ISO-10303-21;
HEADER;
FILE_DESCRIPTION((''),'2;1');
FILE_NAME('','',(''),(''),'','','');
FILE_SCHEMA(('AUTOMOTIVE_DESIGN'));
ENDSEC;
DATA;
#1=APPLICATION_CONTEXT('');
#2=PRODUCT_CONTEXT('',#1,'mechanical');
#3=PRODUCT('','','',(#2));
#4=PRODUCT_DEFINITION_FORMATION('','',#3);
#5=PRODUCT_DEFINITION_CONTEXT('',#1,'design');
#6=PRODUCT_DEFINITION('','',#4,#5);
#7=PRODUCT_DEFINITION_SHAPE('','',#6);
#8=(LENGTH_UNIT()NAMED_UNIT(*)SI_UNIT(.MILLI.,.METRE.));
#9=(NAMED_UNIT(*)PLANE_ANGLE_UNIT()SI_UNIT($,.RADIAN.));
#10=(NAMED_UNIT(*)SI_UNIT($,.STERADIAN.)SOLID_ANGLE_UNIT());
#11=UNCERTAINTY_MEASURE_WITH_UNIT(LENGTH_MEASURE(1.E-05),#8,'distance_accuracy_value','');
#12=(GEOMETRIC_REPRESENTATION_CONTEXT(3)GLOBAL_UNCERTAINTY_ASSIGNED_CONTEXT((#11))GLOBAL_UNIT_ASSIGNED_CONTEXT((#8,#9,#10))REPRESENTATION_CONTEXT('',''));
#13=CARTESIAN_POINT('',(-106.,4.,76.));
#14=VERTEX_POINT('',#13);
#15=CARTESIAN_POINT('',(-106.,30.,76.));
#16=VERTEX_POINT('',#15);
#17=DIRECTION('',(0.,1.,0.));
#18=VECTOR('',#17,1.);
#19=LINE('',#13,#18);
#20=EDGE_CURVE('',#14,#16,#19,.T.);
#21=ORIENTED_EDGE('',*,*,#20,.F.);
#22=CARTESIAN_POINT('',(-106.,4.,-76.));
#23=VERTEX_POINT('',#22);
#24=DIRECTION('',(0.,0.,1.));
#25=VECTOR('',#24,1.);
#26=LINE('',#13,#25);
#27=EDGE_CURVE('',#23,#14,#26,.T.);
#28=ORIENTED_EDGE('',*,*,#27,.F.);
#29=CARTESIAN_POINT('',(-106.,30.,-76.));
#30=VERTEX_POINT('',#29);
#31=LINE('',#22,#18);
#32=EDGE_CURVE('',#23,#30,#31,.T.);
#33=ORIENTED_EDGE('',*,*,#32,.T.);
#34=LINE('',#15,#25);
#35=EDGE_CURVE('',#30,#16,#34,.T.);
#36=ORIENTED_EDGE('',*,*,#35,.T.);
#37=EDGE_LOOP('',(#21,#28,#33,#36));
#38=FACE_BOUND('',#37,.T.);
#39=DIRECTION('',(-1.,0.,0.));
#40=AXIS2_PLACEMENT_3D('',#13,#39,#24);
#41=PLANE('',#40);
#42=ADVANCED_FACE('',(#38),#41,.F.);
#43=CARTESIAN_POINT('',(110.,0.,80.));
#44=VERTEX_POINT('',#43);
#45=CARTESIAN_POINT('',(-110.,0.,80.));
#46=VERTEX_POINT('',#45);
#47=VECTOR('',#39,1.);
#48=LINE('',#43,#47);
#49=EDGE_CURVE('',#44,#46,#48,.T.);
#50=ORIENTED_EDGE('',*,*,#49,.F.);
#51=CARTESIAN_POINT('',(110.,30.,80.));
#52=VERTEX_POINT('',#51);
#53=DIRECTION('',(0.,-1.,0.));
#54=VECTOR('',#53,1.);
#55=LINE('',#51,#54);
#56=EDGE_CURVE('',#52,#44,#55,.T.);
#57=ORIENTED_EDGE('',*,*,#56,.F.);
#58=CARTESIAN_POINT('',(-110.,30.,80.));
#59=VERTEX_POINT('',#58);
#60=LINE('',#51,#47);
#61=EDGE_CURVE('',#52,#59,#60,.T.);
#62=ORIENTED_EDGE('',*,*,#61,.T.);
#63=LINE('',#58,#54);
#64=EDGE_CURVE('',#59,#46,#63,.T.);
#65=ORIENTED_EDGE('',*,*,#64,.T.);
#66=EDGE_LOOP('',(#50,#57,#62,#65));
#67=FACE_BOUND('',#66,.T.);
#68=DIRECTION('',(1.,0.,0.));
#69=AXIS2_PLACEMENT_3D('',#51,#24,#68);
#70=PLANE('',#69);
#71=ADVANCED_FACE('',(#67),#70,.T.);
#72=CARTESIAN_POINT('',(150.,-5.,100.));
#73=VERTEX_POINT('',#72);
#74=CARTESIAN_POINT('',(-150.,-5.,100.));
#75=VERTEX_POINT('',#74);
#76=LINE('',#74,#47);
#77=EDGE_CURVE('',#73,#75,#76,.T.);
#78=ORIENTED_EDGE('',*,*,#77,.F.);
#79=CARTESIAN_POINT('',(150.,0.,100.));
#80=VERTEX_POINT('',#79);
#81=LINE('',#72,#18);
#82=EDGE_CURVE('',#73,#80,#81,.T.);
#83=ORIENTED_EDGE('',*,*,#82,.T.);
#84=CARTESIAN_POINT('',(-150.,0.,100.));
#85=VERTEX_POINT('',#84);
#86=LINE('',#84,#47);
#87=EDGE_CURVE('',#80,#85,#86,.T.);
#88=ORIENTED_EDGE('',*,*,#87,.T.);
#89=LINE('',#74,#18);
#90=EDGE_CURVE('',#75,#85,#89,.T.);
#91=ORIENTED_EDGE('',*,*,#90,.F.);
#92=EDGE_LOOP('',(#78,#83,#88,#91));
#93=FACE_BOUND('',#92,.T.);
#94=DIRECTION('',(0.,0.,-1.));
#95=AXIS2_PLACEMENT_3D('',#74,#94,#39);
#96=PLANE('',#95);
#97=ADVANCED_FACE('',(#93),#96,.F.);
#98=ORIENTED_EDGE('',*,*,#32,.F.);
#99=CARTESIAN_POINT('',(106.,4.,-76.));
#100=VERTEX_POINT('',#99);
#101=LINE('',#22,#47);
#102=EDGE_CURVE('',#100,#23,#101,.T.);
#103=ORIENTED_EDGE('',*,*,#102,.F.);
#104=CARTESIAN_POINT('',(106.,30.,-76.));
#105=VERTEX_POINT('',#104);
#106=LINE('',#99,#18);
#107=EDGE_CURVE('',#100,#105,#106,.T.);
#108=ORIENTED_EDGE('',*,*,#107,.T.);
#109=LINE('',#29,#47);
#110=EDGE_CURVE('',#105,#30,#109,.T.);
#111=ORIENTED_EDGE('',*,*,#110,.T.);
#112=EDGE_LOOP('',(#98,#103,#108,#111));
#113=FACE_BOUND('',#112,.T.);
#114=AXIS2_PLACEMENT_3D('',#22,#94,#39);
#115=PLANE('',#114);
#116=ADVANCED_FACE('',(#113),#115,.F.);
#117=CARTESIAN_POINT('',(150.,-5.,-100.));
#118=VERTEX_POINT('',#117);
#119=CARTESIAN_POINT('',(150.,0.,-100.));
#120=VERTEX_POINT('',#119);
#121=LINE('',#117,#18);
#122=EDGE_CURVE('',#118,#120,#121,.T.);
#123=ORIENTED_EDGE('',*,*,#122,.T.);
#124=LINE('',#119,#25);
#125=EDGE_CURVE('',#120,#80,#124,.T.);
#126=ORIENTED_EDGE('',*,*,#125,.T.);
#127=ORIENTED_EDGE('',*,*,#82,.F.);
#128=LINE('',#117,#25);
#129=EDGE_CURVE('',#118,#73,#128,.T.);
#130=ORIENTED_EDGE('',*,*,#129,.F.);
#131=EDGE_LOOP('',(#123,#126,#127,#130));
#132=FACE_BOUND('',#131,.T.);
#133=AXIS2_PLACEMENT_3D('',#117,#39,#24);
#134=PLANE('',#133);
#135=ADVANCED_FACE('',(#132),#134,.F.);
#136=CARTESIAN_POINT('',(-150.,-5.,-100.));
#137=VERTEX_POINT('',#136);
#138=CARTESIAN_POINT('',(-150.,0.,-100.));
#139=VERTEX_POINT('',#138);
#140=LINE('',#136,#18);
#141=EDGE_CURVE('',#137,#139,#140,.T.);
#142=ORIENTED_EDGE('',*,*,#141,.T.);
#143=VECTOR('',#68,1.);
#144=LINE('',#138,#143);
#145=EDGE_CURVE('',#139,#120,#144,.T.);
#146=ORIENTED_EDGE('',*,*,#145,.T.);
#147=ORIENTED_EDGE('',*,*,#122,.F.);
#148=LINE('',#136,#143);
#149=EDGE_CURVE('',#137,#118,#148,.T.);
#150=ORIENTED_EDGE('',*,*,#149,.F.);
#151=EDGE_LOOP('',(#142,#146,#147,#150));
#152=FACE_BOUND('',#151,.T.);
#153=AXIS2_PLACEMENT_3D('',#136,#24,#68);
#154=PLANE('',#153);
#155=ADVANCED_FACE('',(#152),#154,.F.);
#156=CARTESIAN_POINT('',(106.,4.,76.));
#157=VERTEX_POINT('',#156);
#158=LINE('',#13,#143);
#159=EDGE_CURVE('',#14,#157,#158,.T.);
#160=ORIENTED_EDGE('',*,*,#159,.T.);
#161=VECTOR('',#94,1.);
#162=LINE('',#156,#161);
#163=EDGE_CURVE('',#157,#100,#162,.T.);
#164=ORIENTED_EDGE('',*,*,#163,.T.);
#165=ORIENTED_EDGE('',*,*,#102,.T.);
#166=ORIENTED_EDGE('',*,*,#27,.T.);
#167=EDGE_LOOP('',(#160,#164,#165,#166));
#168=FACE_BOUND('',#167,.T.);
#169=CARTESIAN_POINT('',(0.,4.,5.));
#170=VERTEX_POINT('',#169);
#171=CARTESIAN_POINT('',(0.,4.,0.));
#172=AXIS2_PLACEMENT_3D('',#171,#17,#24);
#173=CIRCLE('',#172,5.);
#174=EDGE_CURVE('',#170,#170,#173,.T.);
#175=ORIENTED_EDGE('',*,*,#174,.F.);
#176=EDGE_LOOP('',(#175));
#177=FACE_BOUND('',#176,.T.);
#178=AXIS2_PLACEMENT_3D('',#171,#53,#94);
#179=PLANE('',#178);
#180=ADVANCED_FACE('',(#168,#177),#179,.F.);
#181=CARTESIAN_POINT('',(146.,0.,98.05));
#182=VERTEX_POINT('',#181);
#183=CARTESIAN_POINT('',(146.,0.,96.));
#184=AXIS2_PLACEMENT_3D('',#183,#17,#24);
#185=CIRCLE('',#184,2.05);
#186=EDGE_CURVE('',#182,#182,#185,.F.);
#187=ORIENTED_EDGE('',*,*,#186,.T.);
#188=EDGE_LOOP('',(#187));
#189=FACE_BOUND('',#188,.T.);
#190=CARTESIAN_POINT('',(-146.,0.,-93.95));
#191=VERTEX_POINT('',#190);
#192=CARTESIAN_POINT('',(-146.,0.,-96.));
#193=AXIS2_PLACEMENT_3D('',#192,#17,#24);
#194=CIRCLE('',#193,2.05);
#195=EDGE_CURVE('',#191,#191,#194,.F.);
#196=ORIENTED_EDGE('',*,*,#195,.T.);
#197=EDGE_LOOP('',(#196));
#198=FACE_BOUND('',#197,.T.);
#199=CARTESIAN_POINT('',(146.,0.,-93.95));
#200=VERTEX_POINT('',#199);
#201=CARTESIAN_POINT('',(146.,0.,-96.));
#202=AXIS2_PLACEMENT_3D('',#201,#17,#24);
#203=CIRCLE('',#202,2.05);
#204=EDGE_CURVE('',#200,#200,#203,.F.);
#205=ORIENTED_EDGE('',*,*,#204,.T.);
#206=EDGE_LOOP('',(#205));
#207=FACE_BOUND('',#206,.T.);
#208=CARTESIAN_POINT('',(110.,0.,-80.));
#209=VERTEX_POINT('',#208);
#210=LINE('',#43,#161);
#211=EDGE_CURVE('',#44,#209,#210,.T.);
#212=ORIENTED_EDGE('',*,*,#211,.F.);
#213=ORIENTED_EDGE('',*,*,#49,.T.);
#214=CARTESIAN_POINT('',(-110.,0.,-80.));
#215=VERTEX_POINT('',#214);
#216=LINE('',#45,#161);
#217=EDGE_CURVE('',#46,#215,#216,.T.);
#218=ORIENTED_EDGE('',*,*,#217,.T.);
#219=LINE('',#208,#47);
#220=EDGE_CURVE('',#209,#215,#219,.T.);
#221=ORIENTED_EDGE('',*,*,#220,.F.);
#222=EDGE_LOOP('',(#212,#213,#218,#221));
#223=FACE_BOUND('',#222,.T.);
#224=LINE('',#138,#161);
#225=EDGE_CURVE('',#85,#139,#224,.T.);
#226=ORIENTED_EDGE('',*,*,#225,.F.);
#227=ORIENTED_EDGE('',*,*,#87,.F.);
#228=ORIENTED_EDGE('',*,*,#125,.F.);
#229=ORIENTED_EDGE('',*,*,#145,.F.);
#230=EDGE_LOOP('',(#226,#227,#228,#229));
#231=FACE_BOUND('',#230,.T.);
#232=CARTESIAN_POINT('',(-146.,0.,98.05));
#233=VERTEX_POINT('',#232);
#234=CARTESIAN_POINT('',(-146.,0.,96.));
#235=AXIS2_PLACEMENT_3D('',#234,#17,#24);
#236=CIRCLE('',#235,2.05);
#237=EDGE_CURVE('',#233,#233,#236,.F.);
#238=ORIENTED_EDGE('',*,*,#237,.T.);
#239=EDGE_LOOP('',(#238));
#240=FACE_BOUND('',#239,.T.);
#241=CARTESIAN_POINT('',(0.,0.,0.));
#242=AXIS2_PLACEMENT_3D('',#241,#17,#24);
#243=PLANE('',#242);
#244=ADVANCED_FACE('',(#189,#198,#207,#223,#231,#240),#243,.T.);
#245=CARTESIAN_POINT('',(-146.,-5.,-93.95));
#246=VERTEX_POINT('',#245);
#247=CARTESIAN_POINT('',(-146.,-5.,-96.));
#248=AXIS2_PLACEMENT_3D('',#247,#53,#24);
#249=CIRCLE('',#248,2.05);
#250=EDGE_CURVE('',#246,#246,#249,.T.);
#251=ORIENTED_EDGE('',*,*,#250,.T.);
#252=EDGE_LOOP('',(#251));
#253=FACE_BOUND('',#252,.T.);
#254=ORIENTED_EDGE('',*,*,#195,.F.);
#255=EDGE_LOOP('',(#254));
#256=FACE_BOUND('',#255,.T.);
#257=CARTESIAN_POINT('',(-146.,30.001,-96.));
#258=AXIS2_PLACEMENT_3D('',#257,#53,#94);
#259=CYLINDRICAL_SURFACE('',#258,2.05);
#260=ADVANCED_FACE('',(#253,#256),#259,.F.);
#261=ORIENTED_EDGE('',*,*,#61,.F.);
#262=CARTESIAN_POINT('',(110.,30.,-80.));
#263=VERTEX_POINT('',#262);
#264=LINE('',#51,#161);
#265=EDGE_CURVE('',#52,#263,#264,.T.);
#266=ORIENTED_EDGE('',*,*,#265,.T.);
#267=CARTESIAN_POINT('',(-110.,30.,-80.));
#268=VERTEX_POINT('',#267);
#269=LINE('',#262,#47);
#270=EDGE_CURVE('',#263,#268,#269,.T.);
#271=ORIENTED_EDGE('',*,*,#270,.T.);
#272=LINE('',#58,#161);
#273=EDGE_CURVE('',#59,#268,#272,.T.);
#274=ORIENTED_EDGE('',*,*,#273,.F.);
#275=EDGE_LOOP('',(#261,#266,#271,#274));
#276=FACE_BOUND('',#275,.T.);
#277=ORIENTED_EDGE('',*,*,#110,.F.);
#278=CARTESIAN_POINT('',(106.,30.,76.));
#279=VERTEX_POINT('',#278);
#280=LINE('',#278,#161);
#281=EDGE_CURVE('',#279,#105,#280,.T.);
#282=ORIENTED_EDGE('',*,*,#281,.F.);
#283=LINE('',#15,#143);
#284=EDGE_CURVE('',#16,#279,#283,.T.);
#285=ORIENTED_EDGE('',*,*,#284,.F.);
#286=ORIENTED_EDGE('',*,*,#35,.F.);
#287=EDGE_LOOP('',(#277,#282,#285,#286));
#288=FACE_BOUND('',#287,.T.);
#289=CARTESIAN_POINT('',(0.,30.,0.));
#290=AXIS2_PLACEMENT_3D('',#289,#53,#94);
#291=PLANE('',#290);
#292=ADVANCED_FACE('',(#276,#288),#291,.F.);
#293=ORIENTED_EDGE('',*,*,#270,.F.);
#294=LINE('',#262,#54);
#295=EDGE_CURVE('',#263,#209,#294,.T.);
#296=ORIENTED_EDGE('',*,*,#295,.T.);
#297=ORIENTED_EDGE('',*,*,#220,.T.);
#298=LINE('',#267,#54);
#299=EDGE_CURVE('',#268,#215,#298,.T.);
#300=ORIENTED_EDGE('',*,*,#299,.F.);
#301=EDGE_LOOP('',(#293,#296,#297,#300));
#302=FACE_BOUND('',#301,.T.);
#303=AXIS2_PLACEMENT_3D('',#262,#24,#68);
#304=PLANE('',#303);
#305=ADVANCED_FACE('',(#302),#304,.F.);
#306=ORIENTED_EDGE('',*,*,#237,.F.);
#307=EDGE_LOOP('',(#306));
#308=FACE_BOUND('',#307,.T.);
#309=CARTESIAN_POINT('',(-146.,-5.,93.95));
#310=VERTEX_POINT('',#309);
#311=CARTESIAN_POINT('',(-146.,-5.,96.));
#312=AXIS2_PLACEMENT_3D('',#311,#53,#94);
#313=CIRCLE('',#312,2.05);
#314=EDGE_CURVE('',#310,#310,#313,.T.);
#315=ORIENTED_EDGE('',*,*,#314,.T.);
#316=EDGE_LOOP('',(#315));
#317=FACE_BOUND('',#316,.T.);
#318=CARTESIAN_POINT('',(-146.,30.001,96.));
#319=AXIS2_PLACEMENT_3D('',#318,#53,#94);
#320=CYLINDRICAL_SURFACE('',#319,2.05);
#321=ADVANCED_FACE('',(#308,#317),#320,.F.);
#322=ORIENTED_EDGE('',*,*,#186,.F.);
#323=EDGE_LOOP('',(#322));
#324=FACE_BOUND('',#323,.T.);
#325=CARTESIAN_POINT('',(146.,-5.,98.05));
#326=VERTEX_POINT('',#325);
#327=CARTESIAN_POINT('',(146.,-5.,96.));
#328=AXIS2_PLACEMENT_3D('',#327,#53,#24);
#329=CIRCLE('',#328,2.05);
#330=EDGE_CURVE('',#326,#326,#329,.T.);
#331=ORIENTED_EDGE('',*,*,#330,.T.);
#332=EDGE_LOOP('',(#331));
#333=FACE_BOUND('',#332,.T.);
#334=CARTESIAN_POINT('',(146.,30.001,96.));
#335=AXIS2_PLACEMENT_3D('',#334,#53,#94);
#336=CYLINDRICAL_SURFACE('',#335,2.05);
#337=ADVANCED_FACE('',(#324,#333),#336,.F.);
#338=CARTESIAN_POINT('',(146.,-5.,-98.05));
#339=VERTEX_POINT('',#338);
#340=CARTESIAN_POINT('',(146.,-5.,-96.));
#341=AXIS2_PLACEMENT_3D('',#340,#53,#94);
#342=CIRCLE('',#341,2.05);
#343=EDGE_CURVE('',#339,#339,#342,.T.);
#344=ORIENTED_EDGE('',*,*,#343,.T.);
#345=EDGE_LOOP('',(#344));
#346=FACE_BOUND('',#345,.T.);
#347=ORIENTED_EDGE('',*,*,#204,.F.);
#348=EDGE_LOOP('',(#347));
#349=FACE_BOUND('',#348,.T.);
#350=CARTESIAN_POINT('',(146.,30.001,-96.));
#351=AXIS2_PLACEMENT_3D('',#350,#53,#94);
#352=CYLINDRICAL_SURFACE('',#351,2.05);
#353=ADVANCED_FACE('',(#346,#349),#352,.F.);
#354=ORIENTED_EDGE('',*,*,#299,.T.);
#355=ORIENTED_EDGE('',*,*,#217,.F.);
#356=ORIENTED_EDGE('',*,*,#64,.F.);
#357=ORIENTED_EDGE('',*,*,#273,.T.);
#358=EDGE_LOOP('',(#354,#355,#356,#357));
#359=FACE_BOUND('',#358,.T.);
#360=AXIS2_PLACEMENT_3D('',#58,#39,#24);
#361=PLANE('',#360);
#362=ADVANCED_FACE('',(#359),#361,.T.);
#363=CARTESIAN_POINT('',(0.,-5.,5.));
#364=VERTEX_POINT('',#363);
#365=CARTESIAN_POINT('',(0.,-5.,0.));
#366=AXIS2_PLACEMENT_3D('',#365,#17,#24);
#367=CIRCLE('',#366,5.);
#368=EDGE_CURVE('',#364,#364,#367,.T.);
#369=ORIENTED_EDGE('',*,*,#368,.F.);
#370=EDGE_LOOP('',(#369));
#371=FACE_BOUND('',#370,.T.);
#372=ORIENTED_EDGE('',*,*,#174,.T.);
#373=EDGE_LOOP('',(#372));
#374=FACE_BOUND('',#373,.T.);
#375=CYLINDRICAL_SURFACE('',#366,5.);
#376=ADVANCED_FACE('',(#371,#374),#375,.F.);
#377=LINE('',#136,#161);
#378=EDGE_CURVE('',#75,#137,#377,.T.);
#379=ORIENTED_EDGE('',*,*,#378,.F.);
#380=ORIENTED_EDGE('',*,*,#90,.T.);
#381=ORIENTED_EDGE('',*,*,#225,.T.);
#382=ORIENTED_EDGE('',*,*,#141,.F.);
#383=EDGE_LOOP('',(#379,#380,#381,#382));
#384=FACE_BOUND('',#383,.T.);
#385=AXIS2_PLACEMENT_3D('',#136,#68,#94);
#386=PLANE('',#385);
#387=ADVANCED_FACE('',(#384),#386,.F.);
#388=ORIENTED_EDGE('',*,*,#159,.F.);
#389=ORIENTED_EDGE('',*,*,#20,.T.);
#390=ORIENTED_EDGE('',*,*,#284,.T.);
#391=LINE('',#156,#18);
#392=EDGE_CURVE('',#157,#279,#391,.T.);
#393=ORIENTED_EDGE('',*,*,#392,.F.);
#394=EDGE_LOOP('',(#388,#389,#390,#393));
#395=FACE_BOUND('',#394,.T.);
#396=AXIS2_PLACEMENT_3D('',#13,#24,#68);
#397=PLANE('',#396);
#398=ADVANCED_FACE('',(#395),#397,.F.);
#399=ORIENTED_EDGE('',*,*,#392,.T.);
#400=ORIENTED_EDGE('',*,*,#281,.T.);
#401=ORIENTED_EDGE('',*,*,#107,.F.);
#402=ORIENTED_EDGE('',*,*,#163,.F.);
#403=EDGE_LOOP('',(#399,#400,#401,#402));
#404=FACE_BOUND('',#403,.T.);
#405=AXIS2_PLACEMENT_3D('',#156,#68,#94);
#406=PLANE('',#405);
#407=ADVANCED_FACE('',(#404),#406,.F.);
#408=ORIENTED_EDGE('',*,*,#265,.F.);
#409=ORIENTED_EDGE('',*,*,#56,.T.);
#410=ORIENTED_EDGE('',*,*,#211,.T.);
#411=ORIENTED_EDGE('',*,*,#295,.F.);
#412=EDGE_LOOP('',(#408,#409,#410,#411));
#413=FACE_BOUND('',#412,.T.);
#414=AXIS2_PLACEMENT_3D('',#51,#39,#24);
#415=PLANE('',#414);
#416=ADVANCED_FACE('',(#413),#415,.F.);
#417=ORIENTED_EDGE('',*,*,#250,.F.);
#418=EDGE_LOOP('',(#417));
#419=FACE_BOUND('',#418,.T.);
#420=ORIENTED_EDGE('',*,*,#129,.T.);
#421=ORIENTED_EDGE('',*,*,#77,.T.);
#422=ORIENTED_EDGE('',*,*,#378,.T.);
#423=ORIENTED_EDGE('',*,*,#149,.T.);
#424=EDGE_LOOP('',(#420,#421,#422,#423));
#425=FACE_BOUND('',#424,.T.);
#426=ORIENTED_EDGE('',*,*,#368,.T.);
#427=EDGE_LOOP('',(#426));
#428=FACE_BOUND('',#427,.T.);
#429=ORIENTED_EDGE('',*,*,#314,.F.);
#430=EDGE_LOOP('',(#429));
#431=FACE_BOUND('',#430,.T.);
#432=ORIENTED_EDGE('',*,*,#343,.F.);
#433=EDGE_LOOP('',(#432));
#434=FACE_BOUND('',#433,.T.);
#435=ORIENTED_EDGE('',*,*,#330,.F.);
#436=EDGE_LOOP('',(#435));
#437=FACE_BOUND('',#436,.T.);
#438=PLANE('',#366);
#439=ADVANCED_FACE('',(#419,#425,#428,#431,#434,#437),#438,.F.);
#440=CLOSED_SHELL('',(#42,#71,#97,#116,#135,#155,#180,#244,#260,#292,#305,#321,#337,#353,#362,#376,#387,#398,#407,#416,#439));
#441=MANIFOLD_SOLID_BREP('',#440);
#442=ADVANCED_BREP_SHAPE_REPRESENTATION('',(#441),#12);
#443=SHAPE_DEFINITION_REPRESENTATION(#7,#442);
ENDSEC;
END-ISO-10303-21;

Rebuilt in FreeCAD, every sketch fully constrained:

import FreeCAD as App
import Part
import Sketcher

V = App.Vector

doc = App.newDocument("Part")
body = doc.addObject("PartDesign::Body", "Body")

sketch1 = body.newObject("Sketcher::SketchObject", "Sketch")
sketch1.AttachmentSupport = (doc.getObject("XZ_Plane"), [""])
sketch1.MapMode = "FlatFace"
sketch1.addGeometry([
    Part.LineSegment(V(-110, -80, 0), V(-110, 80, 0)),
    Part.LineSegment(V(-110, 80, 0), V(110, 80, 0)),
    Part.LineSegment(V(110, 80, 0), V(110, -80, 0)),
    Part.LineSegment(V(110, -80, 0), V(-110, -80, 0)),
], False)
sketch1.addConstraint([
    Sketcher.Constraint("Coincident", 0, 2, 1, 1),
    Sketcher.Constraint("Coincident", 1, 2, 2, 1),
    Sketcher.Constraint("Coincident", 2, 2, 3, 1),
    Sketcher.Constraint("Coincident", 3, 2, 0, 1),
    Sketcher.Constraint("Vertical", 0),
    Sketcher.Constraint("Horizontal", 1),
    Sketcher.Constraint("Vertical", 2),
    Sketcher.Constraint("Horizontal", 3),
    Sketcher.Constraint("Symmetric", 0, 2, 2, 2, -1, 1),
    Sketcher.Constraint("DistanceX", 1, 1, 1, 2, 220.0),
    Sketcher.Constraint("DistanceY", 0, 1, 0, 2, 160.0),
])
pad1 = body.newObject("PartDesign::Pad", "Pad")
pad1.Profile = sketch1
pad1.Length = 30
pad1.Reversed = True

sketch2 = body.newObject("Sketcher::SketchObject", "Sketch001")
sketch2.AttachmentSupport = (doc.getObject("XZ_Plane"), [""])
sketch2.MapMode = "FlatFace"
sketch2.AttachmentOffset = App.Placement(V(0, 0, -30), App.Rotation())
sketch2.addGeometry([
    Part.LineSegment(V(-106, -76, 0), V(-106, 76, 0)),
    Part.LineSegment(V(-106, 76, 0), V(106, 76, 0)),
    Part.LineSegment(V(106, 76, 0), V(106, -76, 0)),
    Part.LineSegment(V(106, -76, 0), V(-106, -76, 0)),
], False)
sketch2.addConstraint([
    Sketcher.Constraint("Coincident", 0, 2, 1, 1),
    Sketcher.Constraint("Coincident", 1, 2, 2, 1),
    Sketcher.Constraint("Coincident", 2, 2, 3, 1),
    Sketcher.Constraint("Coincident", 3, 2, 0, 1),
    Sketcher.Constraint("Vertical", 0),
    Sketcher.Constraint("Horizontal", 1),
    Sketcher.Constraint("Vertical", 2),
    Sketcher.Constraint("Horizontal", 3),
    Sketcher.Constraint("Symmetric", 0, 2, 2, 2, -1, 1),
    Sketcher.Constraint("DistanceX", 1, 1, 1, 2, 212.0),
    Sketcher.Constraint("DistanceY", 0, 1, 0, 2, 152.0),
])
pocket1 = body.newObject("PartDesign::Pocket", "Pocket")
pocket1.Profile = sketch2
pocket1.Length = 26
pocket1.Reversed = True

sketch3 = body.newObject("Sketcher::SketchObject", "Sketch002")
sketch3.AttachmentSupport = (doc.getObject("XZ_Plane"), [""])
sketch3.MapMode = "FlatFace"
sketch3.addGeometry([
    Part.LineSegment(V(-150, 100, 0), V(-150, -100, 0)),
    Part.LineSegment(V(-150, -100, 0), V(150, -100, 0)),
    Part.LineSegment(V(150, -100, 0), V(150, 100, 0)),
    Part.LineSegment(V(150, 100, 0), V(-150, 100, 0)),
], False)
sketch3.addConstraint([
    Sketcher.Constraint("Coincident", 0, 2, 1, 1),
    Sketcher.Constraint("Coincident", 1, 2, 2, 1),
    Sketcher.Constraint("Coincident", 2, 2, 3, 1),
    Sketcher.Constraint("Coincident", 3, 2, 0, 1),
    Sketcher.Constraint("Vertical", 0),
    Sketcher.Constraint("Horizontal", 1),
    Sketcher.Constraint("Vertical", 2),
    Sketcher.Constraint("Horizontal", 3),
    Sketcher.Constraint("Symmetric", 0, 2, 2, 2, -1, 1),
    Sketcher.Constraint("DistanceX", 1, 1, 1, 2, 300.0),
    Sketcher.Constraint("DistanceY", 0, 2, 0, 1, 200.0),
])
pad2 = body.newObject("PartDesign::Pad", "Pad001")
pad2.Profile = sketch3
pad2.Length = 5

sketch4 = body.newObject("Sketcher::SketchObject", "Sketch003")
sketch4.AttachmentSupport = (doc.getObject("XZ_Plane"), [""])
sketch4.MapMode = "FlatFace"
sketch4.AttachmentOffset = App.Placement(V(0, 0, 5), App.Rotation())
sketch4.addGeometry(Part.Circle(V(-146, 96, 0), V(0, 0, 1), 2), False)
sketch4.addConstraint([
    Sketcher.Constraint("Diameter", 0, 4.1),
    Sketcher.Constraint("DistanceX", 0, 3, -1, 1, 146.0),
    Sketcher.Constraint("DistanceY", -1, 1, 0, 3, 96.0),
])
pocket2 = body.newObject("PartDesign::Pocket", "Pocket001")
pocket2.Profile = sketch4
pocket2.Type = "UpToFirst"

sketch5 = body.newObject("Sketcher::SketchObject", "Sketch004")
sketch5.AttachmentSupport = (doc.getObject("XZ_Plane"), [""])
sketch5.MapMode = "FlatFace"
sketch5.AttachmentOffset = App.Placement(V(0, 0, 5), App.Rotation())
sketch5.addGeometry(Part.Circle(V(146, 96, 0), V(0, 0, 1), 2), False)
sketch5.addConstraint([
    Sketcher.Constraint("Diameter", 0, 4.1),
    Sketcher.Constraint("DistanceX", -1, 1, 0, 3, 146.0),
    Sketcher.Constraint("DistanceY", -1, 1, 0, 3, 96.0),
])
pocket3 = body.newObject("PartDesign::Pocket", "Pocket002")
pocket3.Profile = sketch5
pocket3.Type = "UpToFirst"

sketch6 = body.newObject("Sketcher::SketchObject", "Sketch005")
sketch6.AttachmentSupport = (doc.getObject("XZ_Plane"), [""])
sketch6.MapMode = "FlatFace"
sketch6.AttachmentOffset = App.Placement(V(0, 0, 5), App.Rotation())
sketch6.addGeometry(Part.Circle(V(146, -96, 0), V(0, 0, 1), 2), False)
sketch6.addConstraint([
    Sketcher.Constraint("Diameter", 0, 4.1),
    Sketcher.Constraint("DistanceX", -1, 1, 0, 3, 146.0),
    Sketcher.Constraint("DistanceY", 0, 3, -1, 1, 96.0),
])
pocket4 = body.newObject("PartDesign::Pocket", "Pocket003")
pocket4.Profile = sketch6
pocket4.Type = "UpToFirst"

sketch7 = body.newObject("Sketcher::SketchObject", "Sketch006")
sketch7.AttachmentSupport = (doc.getObject("XZ_Plane"), [""])
sketch7.MapMode = "FlatFace"
sketch7.AttachmentOffset = App.Placement(V(0, 0, 5), App.Rotation())
sketch7.addGeometry(Part.Circle(V(-146, -96, 0), V(0, 0, 1), 2), False)
sketch7.addConstraint([
    Sketcher.Constraint("Diameter", 0, 4.1),
    Sketcher.Constraint("DistanceX", 0, 3, -1, 1, 146.0),
    Sketcher.Constraint("DistanceY", 0, 3, -1, 1, 96.0),
])
pocket5 = body.newObject("PartDesign::Pocket", "Pocket004")
pocket5.Profile = sketch7
pocket5.Type = "UpToFirst"

sketch8 = body.newObject("Sketcher::SketchObject", "Sketch007")
sketch8.AttachmentSupport = (doc.getObject("XZ_Plane"), [""])
sketch8.MapMode = "FlatFace"
sketch8.AttachmentOffset = App.Placement(V(0, 0, -4), App.Rotation())
sketch8.addGeometry(Part.Circle(V(0, 0, 0), V(0, 0, 1), 5), False)
sketch8.addConstraint([
    Sketcher.Constraint("Coincident", 0, 3, -1, 1),
    Sketcher.Constraint("Diameter", 0, 10.0),
])
pocket6 = body.newObject("PartDesign::Pocket", "Pocket005")
pocket6.Profile = sketch8
pocket6.Type = "ThroughAll"
pocket6.Reversed = True

doc.recompute()
